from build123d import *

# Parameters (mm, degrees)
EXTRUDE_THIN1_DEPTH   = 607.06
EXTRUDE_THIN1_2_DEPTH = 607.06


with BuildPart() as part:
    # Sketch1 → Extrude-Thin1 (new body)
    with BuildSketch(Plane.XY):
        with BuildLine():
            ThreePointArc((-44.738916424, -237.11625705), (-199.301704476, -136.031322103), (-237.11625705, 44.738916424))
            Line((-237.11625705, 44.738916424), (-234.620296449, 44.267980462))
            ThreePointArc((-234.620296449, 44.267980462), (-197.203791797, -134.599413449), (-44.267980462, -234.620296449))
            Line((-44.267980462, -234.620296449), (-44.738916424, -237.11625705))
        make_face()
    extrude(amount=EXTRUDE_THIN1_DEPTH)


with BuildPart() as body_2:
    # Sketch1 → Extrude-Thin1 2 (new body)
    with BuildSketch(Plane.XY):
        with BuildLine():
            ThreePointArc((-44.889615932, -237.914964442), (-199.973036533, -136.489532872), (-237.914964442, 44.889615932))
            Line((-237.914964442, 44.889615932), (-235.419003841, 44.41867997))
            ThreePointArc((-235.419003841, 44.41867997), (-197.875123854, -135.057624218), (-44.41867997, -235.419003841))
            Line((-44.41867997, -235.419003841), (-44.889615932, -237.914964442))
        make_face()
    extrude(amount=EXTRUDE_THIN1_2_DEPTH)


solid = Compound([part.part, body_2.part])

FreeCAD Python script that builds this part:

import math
import FreeCAD as App
import Part
import Sketcher
Q = App.Units.Quantity

doc = App.newDocument("Part")
body = doc.addObject("PartDesign::Body", "Body")

sketch1 = doc.addObject("Sketcher::SketchObject", "Sketch")
body.addObject(sketch1)
sketch1.AttachmentSupport = (doc.XY_Plane, [""])
sketch1.MapMode = "FlatFace"
sketch1.addGeometry(Part.ArcOfCircle(Part.Circle(App.Vector(0, 0, 0), App.Vector(0, 0, 1), 241.3), math.radians(169), math.radians(259)), False)
sketch1.addGeometry(Part.LineSegment(App.Vector(-44.7, -237.1, 0), App.Vector(-44.3, -234.6, 0)), False)
sketch1.addGeometry(Part.ArcOfCircle(Part.Circle(App.Vector(0, 0, 0), App.Vector(0, 0, 1), 238.8), math.radians(169), math.radians(259)), False)
sketch1.addGeometry(Part.LineSegment(App.Vector(-234.6, 44.3, 0), App.Vector(-237.1, 44.7, 0)), False)
sketch1.addConstraint(Sketcher.Constraint("Coincident", 0, 2, 1, 1))
sketch1.addConstraint(Sketcher.Constraint("Coincident", 1, 2, 2, 2))
sketch1.addConstraint(Sketcher.Constraint("Coincident", 2, 1, 3, 1))
sketch1.addConstraint(Sketcher.Constraint("Coincident", 3, 2, 0, 1))
sketch1.addConstraint(Sketcher.Constraint("Coincident", 0, 3, -1, 1))
sketch1.addConstraint(Sketcher.Constraint("Coincident", 2, 3, -1, 1))
sketch1.addConstraint(Sketcher.Constraint("Perpendicular", 1, 3))
sketch1.addConstraint(Sketcher.Constraint("Radius", 0, Q("9.5 in")))
sketch1.addConstraint(Sketcher.Constraint("Radius", 2, Q("9.4 in")))
sketch1.addConstraint(Sketcher.Constraint("DistanceX", 1, 2, -1, 1, Q("44.26798 mm")))
sketch1.addConstraint(Sketcher.Constraint("DistanceY", -1, 1, 2, 1, Q("44.26798 mm")))
sketch1.addConstraint(Sketcher.Constraint("DistanceY", 0, 2, 1, 2, Q("2.495961 mm")))
pad1 = doc.addObject("PartDesign::Pad", "Pad")
body.addObject(pad1)
pad1.Profile = sketch1
pad1.Length = Q("23.9 in")
body2 = doc.addObject("PartDesign::Body", "Body001")

sketch2 = doc.addObject("Sketcher::SketchObject", "Sketch001")
body2.addObject(sketch2)
sketch2.AttachmentSupport = (doc.getObject("XY_Plane001"), [""])
sketch2.MapMode = "FlatFace"
sketch2.addGeometry(Part.ArcOfCircle(Part.Circle(App.Vector(0, 0, 0), App.Vector(0, 0, 1), 242.1), math.radians(169), math.radians(259)), False)
sketch2.addGeometry(Part.LineSegment(App.Vector(-44.9, -237.9, 0), App.Vector(-44.4, -235.4, 0)), False)
sketch2.addGeometry(Part.ArcOfCircle(Part.Circle(App.Vector(0, 0, 0), App.Vector(0, 0, 1), 239.6), math.radians(169), math.radians(259)), False)
sketch2.addGeometry(Part.LineSegment(App.Vector(-235.4, 44.4, 0), App.Vector(-237.9, 44.9, 0)), False)
sketch2.addConstraint(Sketcher.Constraint("Coincident", 0, 2, 1, 1))
sketch2.addConstraint(Sketcher.Constraint("Coincident", 1, 2, 2, 2))
sketch2.addConstraint(Sketcher.Constraint("Coincident", 2, 1, 3, 1))
sketch2.addConstraint(Sketcher.Constraint("Coincident", 3, 2, 0, 1))
sketch2.addConstraint(Sketcher.Constraint("Coincident", 0, 3, -1, 1))
sketch2.addConstraint(Sketcher.Constraint("Coincident", 2, 3, -1, 1))
sketch2.addConstraint(Sketcher.Constraint("Perpendicular", 1, 3))
sketch2.addConstraint(Sketcher.Constraint("Radius", 0, Q("9.532 in")))
sketch2.addConstraint(Sketcher.Constraint("Radius", 2, Q("9.432 in")))
sketch2.addConstraint(Sketcher.Constraint("DistanceX", 1, 2, -1, 1, Q("44.41868 mm")))
sketch2.addConstraint(Sketcher.Constraint("DistanceY", -1, 1, 2, 1, Q("44.41868 mm")))
sketch2.addConstraint(Sketcher.Constraint("DistanceY", 0, 2, 1, 2, Q("2.495961 mm")))
pad2 = doc.addObject("PartDesign::Pad", "Pad001")
body2.addObject(pad2)
pad2.Profile = sketch2
pad2.Length = Q("23.9 in")

doc.recompute()
